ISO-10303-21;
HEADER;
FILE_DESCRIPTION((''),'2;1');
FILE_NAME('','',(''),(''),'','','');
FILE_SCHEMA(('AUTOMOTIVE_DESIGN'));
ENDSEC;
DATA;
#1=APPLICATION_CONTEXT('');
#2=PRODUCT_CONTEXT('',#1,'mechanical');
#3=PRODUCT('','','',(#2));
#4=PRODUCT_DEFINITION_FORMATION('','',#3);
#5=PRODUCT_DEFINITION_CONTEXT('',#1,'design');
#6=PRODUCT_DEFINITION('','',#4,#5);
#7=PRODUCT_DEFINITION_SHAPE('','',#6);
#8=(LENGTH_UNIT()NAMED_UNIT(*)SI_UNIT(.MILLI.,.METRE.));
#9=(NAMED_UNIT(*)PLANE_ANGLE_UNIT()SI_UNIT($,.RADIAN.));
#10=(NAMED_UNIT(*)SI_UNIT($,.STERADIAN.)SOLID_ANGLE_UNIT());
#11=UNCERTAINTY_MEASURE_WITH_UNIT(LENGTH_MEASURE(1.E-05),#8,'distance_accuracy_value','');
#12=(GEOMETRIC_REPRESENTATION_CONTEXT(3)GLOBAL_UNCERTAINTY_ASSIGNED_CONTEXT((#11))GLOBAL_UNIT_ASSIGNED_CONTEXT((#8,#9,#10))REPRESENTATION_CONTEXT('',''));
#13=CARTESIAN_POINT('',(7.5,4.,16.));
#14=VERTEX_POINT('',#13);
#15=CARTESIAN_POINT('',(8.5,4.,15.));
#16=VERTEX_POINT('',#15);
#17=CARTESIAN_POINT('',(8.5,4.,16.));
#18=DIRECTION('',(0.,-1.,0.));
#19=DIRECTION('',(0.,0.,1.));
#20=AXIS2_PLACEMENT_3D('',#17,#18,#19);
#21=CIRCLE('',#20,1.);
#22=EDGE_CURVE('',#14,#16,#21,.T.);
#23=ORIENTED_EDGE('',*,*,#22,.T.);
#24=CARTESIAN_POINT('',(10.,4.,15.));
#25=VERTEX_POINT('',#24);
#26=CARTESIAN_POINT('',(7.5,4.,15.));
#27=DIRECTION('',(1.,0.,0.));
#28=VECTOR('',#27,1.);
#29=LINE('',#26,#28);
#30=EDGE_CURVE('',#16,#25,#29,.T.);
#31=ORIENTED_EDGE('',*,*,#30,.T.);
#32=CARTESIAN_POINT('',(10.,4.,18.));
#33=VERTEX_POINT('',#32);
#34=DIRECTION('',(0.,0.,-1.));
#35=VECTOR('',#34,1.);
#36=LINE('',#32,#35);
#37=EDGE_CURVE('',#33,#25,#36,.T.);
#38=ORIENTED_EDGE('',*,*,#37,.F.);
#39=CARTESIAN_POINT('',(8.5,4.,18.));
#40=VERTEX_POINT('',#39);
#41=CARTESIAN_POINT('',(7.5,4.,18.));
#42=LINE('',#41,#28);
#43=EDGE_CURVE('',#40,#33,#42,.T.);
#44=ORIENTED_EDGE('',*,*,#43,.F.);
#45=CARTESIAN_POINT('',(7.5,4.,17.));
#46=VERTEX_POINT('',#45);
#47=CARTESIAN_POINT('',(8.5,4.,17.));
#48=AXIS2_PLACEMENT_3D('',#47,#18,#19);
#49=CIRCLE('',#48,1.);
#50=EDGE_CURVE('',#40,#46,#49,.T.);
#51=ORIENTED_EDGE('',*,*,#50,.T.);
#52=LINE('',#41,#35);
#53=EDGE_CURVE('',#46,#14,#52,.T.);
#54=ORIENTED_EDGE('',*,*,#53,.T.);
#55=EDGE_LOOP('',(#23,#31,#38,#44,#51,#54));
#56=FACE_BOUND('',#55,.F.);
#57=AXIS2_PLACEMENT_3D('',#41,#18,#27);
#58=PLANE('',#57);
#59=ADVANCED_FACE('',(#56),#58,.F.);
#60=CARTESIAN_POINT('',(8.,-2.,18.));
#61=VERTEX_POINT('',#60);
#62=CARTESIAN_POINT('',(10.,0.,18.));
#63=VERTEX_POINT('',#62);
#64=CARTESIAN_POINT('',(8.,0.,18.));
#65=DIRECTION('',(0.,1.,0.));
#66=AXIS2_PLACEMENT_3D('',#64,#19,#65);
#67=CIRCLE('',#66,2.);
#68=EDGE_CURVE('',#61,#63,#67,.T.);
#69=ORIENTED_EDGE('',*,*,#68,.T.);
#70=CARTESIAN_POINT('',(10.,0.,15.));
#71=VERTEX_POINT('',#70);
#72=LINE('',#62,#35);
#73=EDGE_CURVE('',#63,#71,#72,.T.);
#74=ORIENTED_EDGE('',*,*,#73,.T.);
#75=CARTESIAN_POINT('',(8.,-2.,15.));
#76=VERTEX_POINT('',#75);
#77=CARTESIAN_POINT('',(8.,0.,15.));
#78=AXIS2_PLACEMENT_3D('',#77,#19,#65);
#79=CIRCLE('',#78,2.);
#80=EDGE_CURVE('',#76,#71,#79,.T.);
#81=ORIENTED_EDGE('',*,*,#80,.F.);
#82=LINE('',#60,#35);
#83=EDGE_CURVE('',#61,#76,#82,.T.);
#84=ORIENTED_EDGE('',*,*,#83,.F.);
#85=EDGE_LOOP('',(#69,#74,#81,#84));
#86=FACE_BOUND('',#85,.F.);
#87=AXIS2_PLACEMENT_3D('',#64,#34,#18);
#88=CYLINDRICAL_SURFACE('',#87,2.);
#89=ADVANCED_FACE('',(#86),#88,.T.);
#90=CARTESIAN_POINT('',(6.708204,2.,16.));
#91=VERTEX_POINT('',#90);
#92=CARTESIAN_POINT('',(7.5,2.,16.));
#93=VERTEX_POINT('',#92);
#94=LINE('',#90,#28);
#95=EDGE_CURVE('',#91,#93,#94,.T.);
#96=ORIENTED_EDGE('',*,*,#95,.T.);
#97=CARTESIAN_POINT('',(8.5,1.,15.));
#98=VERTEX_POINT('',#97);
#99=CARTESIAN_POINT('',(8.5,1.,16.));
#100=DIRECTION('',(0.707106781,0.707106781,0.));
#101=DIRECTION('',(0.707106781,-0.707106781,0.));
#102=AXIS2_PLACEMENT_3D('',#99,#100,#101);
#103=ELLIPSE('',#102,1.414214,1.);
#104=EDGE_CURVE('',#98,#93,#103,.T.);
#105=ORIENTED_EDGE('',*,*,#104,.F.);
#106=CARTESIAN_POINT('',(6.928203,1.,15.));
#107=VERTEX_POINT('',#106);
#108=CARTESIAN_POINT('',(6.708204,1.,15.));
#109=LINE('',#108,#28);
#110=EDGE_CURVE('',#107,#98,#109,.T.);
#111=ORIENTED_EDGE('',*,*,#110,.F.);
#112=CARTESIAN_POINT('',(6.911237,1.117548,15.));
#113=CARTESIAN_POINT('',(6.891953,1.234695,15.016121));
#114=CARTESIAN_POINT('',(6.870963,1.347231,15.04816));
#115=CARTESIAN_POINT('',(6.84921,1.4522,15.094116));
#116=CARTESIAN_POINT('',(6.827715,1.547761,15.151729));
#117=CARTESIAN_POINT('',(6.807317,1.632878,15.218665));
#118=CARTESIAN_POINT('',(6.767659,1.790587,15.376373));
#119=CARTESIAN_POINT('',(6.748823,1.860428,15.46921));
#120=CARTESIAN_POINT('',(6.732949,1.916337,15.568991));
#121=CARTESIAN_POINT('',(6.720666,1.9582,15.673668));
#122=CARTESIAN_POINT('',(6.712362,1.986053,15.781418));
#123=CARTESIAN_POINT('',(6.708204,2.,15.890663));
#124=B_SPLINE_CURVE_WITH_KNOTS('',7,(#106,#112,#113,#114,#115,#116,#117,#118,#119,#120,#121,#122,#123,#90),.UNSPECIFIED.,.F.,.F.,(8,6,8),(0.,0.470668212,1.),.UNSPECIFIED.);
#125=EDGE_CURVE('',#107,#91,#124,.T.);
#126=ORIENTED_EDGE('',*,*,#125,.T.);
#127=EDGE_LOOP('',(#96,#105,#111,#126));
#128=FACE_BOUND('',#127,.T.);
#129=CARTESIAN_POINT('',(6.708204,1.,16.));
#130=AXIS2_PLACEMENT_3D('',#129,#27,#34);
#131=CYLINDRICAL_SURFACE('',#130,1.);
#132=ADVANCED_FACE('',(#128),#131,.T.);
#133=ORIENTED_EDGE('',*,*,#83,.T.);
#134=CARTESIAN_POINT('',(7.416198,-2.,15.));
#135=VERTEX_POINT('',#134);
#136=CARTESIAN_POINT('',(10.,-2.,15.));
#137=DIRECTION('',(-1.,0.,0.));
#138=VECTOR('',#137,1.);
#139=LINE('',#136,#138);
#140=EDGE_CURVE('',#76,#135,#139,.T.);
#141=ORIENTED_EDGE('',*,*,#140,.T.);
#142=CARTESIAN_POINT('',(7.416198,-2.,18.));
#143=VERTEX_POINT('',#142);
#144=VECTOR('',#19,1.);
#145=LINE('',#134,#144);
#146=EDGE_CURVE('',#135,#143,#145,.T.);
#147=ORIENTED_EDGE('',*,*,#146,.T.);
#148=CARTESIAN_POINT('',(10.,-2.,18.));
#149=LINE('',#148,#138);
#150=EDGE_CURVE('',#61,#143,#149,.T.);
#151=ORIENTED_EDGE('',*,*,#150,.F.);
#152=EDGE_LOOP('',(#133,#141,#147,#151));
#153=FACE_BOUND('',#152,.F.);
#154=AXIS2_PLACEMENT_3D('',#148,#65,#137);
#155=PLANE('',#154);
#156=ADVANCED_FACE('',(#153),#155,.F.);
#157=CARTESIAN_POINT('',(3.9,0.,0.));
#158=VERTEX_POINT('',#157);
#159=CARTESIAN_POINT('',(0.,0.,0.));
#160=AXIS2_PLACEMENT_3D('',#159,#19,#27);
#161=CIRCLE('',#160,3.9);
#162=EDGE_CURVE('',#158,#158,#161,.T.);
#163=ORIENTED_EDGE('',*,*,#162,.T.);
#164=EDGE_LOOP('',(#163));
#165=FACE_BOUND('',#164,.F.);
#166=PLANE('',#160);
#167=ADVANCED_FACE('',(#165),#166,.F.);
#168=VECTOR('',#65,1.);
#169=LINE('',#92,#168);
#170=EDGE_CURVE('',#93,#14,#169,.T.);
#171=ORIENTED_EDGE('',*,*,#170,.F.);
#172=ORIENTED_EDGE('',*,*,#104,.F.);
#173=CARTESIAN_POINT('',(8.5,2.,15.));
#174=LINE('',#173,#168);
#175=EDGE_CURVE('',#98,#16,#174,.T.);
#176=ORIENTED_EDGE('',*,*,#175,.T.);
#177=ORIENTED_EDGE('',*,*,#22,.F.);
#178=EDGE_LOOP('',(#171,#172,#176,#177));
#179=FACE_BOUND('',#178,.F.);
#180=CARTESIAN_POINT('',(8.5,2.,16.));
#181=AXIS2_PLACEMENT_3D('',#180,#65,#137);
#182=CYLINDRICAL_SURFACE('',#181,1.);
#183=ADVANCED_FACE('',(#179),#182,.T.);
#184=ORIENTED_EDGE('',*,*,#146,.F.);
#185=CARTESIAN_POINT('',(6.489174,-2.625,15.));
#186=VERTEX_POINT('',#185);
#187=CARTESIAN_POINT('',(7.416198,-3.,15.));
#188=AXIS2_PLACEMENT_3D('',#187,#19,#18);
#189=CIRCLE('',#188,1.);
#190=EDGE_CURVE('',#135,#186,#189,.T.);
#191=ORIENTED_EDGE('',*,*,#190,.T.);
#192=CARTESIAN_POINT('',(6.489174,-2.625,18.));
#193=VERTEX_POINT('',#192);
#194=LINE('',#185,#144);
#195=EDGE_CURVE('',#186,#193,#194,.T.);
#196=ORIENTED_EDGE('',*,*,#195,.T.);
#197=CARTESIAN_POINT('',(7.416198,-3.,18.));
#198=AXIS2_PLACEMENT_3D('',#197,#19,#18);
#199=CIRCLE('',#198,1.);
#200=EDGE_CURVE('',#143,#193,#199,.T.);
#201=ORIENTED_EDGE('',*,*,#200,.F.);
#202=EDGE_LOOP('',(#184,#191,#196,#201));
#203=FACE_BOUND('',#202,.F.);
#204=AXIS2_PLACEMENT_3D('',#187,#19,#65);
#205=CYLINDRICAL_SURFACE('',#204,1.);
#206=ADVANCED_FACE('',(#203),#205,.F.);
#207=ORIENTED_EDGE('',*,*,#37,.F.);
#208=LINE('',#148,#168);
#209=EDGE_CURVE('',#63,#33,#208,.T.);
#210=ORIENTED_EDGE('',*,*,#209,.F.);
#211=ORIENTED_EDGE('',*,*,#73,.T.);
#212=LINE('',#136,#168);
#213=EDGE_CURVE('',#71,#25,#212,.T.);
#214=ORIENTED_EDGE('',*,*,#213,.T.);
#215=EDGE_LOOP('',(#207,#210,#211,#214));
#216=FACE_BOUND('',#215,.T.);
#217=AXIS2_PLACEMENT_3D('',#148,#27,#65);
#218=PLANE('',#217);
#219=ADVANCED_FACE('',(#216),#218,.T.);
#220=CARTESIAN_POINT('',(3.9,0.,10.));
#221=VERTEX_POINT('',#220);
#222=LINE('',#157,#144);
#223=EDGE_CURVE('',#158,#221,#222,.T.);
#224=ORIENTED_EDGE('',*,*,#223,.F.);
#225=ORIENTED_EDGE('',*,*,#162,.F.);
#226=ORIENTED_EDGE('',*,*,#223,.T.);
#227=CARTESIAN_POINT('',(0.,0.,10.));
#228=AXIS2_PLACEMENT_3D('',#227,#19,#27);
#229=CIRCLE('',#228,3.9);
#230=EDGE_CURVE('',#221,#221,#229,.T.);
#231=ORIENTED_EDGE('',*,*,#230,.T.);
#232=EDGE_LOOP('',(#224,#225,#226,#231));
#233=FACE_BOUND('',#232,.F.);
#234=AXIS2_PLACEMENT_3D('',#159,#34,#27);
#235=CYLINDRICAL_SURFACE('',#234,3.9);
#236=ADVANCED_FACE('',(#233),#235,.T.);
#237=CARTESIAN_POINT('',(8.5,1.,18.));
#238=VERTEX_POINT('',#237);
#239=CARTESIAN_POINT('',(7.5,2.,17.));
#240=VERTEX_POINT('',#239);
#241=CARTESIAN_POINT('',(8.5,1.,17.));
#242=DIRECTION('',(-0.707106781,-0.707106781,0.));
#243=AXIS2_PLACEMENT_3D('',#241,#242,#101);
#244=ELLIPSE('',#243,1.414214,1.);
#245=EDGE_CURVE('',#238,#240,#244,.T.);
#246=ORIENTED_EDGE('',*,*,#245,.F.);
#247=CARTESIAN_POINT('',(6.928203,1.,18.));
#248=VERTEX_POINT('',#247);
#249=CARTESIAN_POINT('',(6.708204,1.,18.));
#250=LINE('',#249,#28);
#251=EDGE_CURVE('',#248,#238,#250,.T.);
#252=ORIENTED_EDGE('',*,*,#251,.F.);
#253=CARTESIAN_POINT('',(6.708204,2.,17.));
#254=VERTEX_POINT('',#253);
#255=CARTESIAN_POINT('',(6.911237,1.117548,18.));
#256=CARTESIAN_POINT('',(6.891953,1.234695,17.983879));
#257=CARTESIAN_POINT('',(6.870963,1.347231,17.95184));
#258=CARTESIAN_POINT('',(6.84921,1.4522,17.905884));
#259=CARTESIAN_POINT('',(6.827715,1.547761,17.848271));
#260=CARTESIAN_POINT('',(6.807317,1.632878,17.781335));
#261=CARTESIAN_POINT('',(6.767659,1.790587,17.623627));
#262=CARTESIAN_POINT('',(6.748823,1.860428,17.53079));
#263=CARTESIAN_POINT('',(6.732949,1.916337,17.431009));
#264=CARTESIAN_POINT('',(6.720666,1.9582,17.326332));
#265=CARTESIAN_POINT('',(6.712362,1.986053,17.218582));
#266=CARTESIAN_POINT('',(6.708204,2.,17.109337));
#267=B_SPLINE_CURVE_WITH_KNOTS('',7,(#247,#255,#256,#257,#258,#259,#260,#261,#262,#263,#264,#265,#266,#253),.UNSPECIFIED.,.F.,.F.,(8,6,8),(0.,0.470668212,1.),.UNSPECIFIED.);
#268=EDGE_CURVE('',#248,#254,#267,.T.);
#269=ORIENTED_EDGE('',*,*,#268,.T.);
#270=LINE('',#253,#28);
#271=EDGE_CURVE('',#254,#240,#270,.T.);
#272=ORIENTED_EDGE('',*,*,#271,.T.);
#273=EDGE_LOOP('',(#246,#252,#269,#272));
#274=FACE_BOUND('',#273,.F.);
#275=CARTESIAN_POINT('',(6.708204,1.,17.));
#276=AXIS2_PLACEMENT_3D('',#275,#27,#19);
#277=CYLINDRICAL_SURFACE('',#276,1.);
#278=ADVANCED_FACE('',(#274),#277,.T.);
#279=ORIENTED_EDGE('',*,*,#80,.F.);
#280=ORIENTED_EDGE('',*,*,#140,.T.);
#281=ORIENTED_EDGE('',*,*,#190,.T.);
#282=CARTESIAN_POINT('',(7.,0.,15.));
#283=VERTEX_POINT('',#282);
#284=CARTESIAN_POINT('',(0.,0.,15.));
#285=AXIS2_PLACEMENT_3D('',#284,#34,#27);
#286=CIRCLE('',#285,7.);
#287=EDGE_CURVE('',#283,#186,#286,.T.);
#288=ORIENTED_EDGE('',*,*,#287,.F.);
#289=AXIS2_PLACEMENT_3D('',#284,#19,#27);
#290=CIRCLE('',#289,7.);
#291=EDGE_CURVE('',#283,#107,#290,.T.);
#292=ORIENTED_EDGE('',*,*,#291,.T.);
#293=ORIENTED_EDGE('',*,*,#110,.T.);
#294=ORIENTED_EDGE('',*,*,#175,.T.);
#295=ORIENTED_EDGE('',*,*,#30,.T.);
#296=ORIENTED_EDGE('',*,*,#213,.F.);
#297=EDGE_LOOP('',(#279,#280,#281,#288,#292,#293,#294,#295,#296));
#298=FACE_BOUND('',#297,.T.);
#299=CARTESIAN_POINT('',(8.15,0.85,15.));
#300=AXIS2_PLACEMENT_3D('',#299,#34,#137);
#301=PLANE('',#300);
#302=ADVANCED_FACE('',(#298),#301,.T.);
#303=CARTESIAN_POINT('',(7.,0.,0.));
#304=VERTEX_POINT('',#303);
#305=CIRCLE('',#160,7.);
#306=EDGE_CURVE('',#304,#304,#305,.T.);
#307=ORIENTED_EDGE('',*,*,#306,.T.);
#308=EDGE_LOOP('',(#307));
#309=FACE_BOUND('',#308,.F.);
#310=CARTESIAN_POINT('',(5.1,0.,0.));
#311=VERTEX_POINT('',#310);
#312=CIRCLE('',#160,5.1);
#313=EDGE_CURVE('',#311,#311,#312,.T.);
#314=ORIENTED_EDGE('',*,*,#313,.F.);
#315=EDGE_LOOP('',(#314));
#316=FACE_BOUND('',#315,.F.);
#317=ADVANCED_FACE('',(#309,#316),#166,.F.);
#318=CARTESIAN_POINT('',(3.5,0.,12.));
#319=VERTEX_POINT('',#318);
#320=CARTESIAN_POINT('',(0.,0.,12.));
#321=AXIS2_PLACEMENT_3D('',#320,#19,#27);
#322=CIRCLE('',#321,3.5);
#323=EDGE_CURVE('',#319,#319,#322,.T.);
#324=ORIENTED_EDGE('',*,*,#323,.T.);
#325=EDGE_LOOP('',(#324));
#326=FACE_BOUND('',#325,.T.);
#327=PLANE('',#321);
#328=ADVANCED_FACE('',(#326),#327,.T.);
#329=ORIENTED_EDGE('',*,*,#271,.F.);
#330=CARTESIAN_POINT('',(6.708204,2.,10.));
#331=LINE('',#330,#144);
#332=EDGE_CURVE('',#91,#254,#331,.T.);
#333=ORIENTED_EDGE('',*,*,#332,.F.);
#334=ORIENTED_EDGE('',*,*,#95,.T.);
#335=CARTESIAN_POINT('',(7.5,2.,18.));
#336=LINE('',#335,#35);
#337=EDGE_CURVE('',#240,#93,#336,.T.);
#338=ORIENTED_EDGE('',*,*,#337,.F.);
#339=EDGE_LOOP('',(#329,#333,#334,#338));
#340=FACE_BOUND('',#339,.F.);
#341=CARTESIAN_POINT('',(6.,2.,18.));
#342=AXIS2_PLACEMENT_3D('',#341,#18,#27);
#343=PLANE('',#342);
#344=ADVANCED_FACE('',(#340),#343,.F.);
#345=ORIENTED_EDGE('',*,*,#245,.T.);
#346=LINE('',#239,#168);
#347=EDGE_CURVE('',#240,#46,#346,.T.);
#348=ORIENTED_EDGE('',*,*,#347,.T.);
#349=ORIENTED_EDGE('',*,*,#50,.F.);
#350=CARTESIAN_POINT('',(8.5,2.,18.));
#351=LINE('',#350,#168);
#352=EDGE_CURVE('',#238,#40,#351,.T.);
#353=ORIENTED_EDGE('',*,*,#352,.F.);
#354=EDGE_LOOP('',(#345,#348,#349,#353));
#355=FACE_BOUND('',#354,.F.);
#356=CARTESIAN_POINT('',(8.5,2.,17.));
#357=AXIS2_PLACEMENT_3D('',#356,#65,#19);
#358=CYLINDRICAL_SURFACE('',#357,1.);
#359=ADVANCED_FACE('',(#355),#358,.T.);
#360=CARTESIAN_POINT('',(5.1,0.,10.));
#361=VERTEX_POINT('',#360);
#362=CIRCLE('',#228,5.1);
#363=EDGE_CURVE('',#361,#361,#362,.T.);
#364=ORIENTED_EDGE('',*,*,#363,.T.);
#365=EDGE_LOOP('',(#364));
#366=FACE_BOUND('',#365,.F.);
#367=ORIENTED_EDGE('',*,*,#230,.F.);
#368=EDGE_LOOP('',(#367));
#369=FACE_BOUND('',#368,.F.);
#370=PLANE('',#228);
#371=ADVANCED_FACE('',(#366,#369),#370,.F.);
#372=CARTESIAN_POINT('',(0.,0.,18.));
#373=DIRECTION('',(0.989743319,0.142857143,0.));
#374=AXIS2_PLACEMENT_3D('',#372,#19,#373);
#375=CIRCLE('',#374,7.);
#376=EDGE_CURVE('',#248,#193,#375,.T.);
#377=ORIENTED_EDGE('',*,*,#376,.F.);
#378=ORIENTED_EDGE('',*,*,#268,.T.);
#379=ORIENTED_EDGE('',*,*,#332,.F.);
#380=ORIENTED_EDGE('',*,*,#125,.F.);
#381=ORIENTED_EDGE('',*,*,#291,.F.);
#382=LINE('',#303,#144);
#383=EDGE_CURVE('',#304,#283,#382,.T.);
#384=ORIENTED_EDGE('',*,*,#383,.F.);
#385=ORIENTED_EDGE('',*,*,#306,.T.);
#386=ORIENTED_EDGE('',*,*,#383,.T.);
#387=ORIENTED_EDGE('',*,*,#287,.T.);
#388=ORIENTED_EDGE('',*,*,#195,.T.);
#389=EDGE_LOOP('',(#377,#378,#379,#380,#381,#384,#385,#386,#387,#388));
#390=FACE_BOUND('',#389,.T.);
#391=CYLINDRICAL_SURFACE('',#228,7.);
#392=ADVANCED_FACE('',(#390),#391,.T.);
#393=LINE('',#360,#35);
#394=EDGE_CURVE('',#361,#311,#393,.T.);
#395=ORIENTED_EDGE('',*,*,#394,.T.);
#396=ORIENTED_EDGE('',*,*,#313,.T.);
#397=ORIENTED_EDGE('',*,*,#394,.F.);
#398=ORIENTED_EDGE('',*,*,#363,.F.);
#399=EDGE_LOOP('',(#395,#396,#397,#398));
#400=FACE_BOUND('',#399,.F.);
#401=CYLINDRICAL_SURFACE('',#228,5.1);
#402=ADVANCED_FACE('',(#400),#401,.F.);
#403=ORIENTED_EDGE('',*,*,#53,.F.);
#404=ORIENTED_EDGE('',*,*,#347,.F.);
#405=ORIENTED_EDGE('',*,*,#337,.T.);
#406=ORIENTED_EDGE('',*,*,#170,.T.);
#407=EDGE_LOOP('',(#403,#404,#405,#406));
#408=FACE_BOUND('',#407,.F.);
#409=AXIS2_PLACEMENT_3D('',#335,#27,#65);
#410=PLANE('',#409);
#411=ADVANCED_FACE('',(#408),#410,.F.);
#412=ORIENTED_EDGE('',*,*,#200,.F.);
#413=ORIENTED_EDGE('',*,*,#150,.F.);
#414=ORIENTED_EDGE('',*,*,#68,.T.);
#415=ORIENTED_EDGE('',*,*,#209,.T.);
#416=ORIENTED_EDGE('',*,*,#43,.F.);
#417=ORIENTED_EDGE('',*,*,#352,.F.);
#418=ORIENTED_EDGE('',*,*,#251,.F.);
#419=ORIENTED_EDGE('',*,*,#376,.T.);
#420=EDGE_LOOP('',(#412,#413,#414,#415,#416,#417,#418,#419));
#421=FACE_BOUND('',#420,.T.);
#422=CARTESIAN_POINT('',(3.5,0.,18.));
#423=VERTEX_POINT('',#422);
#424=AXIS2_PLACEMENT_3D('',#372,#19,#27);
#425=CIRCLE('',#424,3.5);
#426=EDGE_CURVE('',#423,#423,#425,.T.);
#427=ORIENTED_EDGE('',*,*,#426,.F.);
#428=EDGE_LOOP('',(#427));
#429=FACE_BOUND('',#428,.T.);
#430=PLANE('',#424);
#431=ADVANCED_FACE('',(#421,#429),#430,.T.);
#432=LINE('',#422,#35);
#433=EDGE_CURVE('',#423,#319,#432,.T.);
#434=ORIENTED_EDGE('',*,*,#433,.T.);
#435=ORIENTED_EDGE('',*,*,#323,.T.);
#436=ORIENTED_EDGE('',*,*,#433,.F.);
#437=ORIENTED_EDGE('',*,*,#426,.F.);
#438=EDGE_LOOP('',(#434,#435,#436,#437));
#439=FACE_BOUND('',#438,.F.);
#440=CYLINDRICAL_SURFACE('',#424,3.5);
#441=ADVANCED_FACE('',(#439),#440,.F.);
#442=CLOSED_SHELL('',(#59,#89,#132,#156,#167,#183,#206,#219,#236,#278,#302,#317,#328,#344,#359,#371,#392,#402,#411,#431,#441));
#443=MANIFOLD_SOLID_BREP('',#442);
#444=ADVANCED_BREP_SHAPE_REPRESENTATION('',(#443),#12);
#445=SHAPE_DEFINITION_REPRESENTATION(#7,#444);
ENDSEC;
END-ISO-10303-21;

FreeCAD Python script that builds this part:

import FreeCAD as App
import Part
import Sketcher

V = App.Vector
Q = App.Units.Quantity


def edges_at(feature, points):
    """Names of the edges that pass closest to the given points."""
    edges = feature.Shape.Edges
    near = lambda p: min(range(len(edges)), key=lambda i: edges[i].distToShape(Part.Vertex(*p))[0])
    return sorted({f"Edge{near(p) + 1}" for p in points})


def add_polygon(sketch, points):
    """Adds a closed chain of lines whose ends are joined by coincident constraints."""
    first, n = sketch.GeometryCount, len(points)
    for a, b in zip(points, points[1:] + points[:1]):
        sketch.addGeometry(Part.LineSegment(App.Vector(*a, 0), App.Vector(*b, 0)), False)
    for i in range(n):
        sketch.addConstraint(Sketcher.Constraint("Coincident", first + i, 2, first + (i + 1) % n, 1))

doc = App.newDocument("Part")
body = doc.addObject("PartDesign::Body", "Body")

sketch1 = doc.addObject("Sketcher::SketchObject", "Sketch")
body.addObject(sketch1)
sketch1.AttachmentSupport = (doc.XY_Plane, [""])
sketch1.MapMode = "FlatFace"
sketch1.addGeometry(Part.Circle(V(0, 0, 0), V(0, 0, 1), 3.9), False)
sketch1.addConstraint(Sketcher.Constraint("Coincident", 0, 3, -1, 1))
sketch1.addConstraint(Sketcher.Constraint("Diameter", 0, Q("7.8 mm")))
pad1 = doc.addObject("PartDesign::Pad", "Pad")
body.addObject(pad1)
pad1.Profile = sketch1
pad1.Length = 10

sketch2 = doc.addObject("Sketcher::SketchObject", "Sketch001")
body.addObject(sketch2)
sketch2.AttachmentSupport = (doc.XY_Plane, [""])
sketch2.MapMode = "FlatFace"
sketch2.AttachmentOffset = App.Placement(V(0, 0, 10), App.Rotation())
sketch2.addGeometry(Part.Circle(V(0, 0, 0), V(0, 0, 1), 7), False)
sketch2.addConstraint(Sketcher.Constraint("Coincident", 0, 3, -1, 1))
sketch2.addConstraint(Sketcher.Constraint("Diameter", 0, Q("14 mm")))
pad2 = doc.addObject("PartDesign::Pad", "Pad001")
body.addObject(pad2)
pad2.Profile = sketch2
pad2.Length = 8

sketch3 = doc.addObject("Sketcher::SketchObject", "Sketch002")
body.addObject(sketch3)
sketch3.AttachmentSupport = (doc.XY_Plane, [""])
sketch3.MapMode = "FlatFace"
sketch3.AttachmentOffset = App.Placement(V(0, 0, 18), App.Rotation())
sketch3.addGeometry(Part.Circle(V(0, 0, 0), V(0, 0, 1), 3.5), False)
sketch3.addConstraint(Sketcher.Constraint("Coincident", 0, 3, -1, 1))
sketch3.addConstraint(Sketcher.Constraint("Diameter", 0, Q("7 mm")))
pocket1 = doc.addObject("PartDesign::Pocket", "Pocket")
body.addObject(pocket1)
pocket1.Profile = sketch3
pocket1.Length = 6

sketch4 = doc.addObject("Sketcher::SketchObject", "Sketch003")
body.addObject(sketch4)
sketch4.AttachmentSupport = (doc.XY_Plane, [""])
sketch4.MapMode = "FlatFace"
sketch4.AttachmentOffset = App.Placement(V(0, 0, 10), App.Rotation())
sketch4.addGeometry(Part.Circle(V(0, 0, 0), V(0, 0, 1), 7), False)
sketch4.addGeometry(Part.Circle(V(0, 0, 0), V(0, 0, 1), 5.1), False)
sketch4.addConstraint(Sketcher.Constraint("Coincident", 0, 3, -1, 1))
sketch4.addConstraint(Sketcher.Constraint("Coincident", 1, 3, -1, 1))
sketch4.addConstraint(Sketcher.Constraint("Diameter", 0, Q("14 mm")))
sketch4.addConstraint(Sketcher.Constraint("Diameter", 1, Q("10.2 mm")))
pad3 = doc.addObject("PartDesign::Pad", "Pad002")
body.addObject(pad3)
pad3.Profile = sketch4
pad3.Length = 10
pad3.Reversed = True

sketch5 = doc.addObject("Sketcher::SketchObject", "Sketch004")
body.addObject(sketch5)
sketch5.AttachmentSupport = (doc.XY_Plane, [""])
sketch5.MapMode = "FlatFace"
sketch5.AttachmentOffset = App.Placement(V(0, 0, 18), App.Rotation())
add_polygon(sketch5, [(7.5, 2), (6, 2), (6, -2), (10, -2), (10, 4), (7.5, 4)])
sketch5.addConstraint(Sketcher.Constraint("Horizontal", 0))
sketch5.addConstraint(Sketcher.Constraint("Vertical", 1))
sketch5.addConstraint(Sketcher.Constraint("Horizontal", 2))
sketch5.addConstraint(Sketcher.Constraint("Vertical", 3))
sketch5.addConstraint(Sketcher.Constraint("Horizontal", 4))
sketch5.addConstraint(Sketcher.Constraint("Vertical", 5))
sketch5.addConstraint(Sketcher.Constraint("Equal", 2, 1))
sketch5.addConstraint(Sketcher.Constraint("DistanceX", 2, 1, 2, 2, Q("4 mm")))
sketch5.addConstraint(Sketcher.Constraint("DistanceY", 3, 1, 3, 2, Q("6 mm")))
sketch5.addConstraint(Sketcher.Constraint("DistanceX", 0, 2, 0, 1, Q("1.5 mm")))
sketch5.addConstraint(Sketcher.Constraint("DistanceX", -1, 1, 0, 2, Q("6 mm")))
sketch5.addConstraint(Sketcher.Constraint("DistanceY", -1, 1, 0, 2, Q("2 mm")))
pad4 = doc.addObject("PartDesign::Pad", "Pad003")
body.addObject(pad4)
pad4.Profile = sketch5
pad4.Length = 3
pad4.Reversed = True
doc.recompute()

fillet = doc.addObject("PartDesign::Fillet", "Fillet")
body.addObject(fillet)
fillet.Base = (pad4, edges_at(pad4, [(10, -2, 16.5)]))
fillet.Radius = 2
doc.recompute()

fillet2 = doc.addObject("PartDesign::Fillet", "Fillet001")
body.addObject(fillet2)
fillet2.Base = (fillet, edges_at(fillet, [(6.708, -2, 16.5)]))
fillet2.Radius = 1
doc.recompute()

fillet3 = doc.addObject("PartDesign::Fillet", "Fillet002")
body.addObject(fillet3)
fillet3.Base = (fillet2, edges_at(fillet2, [
    (7.104, 2, 15),
    (7.5, 3, 15),
    (7.104, 2, 18),
    (7.5, 3, 18),
]))
fillet3.Radius = 1

doc.recompute()
